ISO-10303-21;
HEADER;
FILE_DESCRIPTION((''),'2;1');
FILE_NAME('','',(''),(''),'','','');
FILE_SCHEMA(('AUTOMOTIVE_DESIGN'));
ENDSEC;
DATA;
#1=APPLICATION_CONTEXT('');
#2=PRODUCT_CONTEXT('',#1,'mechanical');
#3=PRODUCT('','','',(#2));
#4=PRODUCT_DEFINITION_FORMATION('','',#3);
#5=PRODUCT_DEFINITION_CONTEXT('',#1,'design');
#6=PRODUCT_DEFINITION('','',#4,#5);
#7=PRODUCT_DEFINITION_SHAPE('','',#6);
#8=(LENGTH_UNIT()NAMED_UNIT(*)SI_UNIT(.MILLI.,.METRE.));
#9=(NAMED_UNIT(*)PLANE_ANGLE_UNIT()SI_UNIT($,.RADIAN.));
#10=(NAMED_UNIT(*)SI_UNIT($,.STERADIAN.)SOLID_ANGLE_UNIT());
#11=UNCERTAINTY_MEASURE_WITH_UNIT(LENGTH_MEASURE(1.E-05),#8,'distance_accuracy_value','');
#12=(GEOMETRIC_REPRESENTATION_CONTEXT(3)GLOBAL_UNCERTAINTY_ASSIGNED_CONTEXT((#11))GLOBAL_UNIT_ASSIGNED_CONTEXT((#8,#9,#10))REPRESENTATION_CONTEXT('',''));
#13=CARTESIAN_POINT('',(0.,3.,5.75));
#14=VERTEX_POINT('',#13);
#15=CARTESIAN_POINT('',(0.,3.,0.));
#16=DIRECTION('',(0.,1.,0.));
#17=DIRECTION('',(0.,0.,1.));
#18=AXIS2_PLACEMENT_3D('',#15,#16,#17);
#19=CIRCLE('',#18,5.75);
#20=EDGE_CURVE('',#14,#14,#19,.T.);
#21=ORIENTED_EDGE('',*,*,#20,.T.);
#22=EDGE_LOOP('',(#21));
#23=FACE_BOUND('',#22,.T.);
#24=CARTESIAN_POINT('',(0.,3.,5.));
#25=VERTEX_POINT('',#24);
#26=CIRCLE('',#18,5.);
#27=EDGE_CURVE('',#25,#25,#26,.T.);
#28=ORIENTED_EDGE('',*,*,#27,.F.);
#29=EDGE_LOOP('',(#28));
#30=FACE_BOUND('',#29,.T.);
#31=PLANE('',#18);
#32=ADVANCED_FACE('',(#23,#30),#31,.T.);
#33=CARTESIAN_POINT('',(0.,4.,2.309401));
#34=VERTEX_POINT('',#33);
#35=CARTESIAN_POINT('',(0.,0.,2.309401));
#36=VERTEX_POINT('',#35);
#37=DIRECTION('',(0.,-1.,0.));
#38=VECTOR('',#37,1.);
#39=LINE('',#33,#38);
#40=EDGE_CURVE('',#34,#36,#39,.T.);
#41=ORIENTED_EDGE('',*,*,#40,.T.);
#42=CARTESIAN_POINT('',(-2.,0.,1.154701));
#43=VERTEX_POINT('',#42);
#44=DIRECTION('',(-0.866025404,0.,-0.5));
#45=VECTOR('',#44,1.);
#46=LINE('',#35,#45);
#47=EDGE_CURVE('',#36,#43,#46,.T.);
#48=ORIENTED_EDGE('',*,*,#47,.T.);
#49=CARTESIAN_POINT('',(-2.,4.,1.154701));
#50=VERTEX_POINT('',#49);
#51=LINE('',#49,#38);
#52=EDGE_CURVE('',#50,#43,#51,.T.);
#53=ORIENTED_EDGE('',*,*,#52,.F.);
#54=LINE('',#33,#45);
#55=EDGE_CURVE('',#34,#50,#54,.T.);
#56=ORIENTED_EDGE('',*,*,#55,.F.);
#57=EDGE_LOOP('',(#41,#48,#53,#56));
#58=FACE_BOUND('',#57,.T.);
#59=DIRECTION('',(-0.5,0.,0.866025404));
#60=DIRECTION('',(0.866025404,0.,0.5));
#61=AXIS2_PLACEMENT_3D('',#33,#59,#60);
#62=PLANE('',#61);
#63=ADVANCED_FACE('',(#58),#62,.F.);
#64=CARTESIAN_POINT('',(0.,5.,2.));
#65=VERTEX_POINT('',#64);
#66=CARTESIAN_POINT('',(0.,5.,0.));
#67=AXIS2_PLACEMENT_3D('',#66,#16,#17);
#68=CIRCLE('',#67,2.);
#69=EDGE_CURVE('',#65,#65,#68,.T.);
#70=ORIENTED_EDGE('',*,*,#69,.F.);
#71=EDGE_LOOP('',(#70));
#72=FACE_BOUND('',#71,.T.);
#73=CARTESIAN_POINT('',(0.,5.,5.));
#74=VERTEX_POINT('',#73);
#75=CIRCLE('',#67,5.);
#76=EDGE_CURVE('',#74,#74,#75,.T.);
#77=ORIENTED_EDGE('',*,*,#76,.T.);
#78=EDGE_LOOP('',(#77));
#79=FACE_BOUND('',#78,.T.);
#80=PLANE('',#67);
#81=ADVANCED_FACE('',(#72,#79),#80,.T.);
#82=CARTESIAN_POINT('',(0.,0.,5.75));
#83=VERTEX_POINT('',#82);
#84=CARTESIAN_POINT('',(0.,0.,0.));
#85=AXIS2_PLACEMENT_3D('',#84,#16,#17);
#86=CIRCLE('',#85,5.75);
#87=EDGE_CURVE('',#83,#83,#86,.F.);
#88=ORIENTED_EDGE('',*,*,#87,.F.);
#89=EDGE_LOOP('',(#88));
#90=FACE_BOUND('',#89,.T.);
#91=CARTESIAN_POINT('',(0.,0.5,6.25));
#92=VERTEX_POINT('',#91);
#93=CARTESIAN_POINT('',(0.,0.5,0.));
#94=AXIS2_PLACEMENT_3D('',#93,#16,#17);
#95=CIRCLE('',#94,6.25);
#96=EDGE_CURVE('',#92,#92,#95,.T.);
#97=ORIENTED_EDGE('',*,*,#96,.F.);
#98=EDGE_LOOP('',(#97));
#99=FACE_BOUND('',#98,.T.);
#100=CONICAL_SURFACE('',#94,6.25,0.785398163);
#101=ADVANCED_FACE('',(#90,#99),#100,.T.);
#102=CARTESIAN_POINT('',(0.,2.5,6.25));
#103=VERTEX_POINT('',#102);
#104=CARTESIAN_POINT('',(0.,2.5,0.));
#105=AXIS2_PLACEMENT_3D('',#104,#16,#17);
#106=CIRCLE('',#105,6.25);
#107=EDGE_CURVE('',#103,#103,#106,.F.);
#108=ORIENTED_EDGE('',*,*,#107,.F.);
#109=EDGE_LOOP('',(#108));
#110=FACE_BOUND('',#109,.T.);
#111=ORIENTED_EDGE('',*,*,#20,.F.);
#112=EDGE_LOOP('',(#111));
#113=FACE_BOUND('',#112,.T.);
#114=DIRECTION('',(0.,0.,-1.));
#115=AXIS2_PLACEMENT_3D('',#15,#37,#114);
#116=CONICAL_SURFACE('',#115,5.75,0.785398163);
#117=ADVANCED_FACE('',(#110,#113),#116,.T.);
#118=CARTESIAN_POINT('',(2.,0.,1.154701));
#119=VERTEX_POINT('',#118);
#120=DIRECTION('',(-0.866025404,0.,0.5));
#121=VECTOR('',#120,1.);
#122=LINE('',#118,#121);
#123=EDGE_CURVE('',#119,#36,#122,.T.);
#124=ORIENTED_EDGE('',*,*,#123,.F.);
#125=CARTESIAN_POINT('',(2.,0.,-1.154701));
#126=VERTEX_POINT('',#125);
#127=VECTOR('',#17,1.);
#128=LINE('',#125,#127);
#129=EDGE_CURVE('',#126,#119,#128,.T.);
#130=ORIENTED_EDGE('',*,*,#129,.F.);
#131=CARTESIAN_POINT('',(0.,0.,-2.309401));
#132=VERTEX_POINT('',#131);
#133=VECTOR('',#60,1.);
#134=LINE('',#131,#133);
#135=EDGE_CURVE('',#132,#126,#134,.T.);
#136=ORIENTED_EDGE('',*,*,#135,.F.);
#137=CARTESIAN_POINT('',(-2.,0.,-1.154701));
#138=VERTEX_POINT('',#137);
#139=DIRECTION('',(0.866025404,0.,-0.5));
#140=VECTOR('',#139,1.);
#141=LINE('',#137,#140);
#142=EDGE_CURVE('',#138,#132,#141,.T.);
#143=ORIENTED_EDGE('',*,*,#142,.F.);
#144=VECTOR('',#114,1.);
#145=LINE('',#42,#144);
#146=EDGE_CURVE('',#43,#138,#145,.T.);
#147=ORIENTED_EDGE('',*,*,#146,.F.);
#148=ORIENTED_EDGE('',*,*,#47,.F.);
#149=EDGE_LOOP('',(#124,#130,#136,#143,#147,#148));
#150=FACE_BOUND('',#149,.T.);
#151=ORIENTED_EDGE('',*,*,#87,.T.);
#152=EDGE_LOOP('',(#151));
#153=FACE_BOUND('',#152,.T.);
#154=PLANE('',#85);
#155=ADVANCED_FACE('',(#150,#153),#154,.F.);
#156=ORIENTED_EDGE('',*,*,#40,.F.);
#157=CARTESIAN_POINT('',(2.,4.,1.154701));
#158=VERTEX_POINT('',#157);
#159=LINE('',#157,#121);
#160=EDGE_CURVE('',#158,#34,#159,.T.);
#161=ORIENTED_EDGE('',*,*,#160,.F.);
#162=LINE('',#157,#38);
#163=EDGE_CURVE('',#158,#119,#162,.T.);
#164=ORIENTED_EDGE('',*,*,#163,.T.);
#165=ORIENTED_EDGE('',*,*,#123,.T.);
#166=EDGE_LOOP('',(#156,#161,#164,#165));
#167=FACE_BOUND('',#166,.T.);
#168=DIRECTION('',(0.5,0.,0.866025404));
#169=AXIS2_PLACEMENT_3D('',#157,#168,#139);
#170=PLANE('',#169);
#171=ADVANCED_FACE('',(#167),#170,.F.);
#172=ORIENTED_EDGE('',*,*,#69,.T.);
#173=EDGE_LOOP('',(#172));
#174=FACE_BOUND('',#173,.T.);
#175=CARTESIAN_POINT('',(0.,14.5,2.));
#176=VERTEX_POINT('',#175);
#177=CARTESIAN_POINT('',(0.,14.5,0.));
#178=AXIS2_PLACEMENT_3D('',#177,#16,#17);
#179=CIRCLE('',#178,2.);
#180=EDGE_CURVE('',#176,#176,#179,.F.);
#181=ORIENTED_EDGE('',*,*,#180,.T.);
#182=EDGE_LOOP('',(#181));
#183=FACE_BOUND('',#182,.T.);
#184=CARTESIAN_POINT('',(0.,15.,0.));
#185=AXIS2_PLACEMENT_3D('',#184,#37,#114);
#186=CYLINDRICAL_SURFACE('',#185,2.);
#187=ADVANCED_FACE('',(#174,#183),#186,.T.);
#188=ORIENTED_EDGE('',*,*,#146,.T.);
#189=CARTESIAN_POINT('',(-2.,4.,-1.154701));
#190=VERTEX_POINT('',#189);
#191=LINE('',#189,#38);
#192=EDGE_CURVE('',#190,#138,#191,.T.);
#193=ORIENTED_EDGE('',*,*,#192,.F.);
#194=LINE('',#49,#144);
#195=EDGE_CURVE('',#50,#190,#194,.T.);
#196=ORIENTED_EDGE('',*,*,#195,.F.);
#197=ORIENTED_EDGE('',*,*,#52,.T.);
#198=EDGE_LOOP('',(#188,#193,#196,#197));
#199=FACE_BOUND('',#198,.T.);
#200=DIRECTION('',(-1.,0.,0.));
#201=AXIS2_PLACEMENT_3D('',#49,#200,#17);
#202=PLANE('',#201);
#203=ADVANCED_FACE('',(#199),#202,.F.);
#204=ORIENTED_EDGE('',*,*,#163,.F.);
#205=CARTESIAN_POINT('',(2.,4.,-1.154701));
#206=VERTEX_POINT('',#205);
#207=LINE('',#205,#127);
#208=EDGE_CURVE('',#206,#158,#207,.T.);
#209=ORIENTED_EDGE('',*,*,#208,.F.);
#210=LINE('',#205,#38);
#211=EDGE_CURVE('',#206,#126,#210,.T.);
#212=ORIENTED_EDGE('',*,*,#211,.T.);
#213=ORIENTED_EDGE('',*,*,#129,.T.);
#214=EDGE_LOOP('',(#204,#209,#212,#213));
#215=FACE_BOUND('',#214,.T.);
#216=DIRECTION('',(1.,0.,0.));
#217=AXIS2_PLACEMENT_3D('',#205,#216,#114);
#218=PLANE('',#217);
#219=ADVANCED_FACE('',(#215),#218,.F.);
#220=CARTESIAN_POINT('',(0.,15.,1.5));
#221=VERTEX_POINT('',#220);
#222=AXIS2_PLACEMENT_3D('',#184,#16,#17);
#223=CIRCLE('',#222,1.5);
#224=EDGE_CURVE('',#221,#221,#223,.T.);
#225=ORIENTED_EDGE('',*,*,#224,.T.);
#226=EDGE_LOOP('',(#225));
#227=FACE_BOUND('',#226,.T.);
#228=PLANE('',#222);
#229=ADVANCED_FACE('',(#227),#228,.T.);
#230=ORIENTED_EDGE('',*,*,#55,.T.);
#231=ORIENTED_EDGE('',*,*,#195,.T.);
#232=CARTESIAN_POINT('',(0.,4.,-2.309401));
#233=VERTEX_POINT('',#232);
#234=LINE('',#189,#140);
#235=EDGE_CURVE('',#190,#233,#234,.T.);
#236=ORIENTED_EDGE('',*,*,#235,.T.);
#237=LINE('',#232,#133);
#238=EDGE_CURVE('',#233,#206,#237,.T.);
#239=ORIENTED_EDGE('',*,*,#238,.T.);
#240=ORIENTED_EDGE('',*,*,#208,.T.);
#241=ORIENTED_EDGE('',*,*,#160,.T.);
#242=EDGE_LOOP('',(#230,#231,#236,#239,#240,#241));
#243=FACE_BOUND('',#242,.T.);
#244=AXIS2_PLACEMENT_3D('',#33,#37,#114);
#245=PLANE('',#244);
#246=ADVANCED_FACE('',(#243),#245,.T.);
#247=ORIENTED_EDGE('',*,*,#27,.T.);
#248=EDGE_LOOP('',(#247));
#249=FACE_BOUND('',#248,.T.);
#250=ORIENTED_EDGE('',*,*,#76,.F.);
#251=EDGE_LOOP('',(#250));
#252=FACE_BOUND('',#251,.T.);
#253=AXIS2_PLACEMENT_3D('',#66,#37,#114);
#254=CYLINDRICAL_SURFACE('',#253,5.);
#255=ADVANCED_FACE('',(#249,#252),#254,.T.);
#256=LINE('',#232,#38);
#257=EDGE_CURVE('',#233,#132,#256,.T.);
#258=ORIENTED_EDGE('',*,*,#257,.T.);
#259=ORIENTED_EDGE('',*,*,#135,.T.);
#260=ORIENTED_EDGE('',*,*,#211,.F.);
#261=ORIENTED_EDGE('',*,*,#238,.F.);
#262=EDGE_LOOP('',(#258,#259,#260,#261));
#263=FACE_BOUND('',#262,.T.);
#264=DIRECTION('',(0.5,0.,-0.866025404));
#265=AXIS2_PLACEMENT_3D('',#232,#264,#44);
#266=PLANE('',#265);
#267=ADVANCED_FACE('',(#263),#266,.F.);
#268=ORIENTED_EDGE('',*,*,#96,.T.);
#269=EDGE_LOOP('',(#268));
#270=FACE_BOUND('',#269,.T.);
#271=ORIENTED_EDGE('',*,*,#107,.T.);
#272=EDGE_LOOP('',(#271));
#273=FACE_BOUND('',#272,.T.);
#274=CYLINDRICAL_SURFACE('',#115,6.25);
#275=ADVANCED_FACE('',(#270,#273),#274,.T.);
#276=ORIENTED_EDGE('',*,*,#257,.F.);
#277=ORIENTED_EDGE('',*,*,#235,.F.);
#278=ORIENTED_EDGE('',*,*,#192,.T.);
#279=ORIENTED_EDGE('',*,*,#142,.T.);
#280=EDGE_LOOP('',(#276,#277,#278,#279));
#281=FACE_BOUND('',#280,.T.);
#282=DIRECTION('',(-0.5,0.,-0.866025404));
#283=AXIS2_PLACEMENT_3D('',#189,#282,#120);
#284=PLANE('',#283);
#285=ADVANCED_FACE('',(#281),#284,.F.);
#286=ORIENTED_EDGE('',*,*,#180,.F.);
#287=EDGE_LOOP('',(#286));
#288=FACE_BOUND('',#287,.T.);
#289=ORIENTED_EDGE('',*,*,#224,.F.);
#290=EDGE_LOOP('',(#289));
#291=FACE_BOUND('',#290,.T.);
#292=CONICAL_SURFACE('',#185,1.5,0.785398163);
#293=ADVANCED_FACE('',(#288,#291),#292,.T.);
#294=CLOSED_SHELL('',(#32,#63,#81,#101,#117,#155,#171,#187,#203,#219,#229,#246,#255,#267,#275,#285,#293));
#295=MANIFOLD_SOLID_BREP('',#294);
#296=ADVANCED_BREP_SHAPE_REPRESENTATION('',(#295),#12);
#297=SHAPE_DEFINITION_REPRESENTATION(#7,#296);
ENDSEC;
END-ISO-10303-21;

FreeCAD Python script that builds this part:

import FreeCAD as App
import Part
import Sketcher
from FreeCAD import Vector
Q = App.Units.Quantity


def edges_at(feature, points):
    """Names of the edges that pass closest to the given points."""
    edges = feature.Shape.Edges
    near = lambda p: min(range(len(edges)), key=lambda i: edges[i].distToShape(Part.Vertex(*p))[0])
    return sorted({f"Edge{near(p) + 1}" for p in points})

doc = App.newDocument("Part")
body = doc.addObject("PartDesign::Body", "Body")

# Sketch on XZ plane
sketch1 = body.newObject("Sketcher::SketchObject", "Sketch")
sketch1.AttachmentSupport = (doc.getObject("XZ_Plane"), [""])
sketch1.MapMode = "FlatFace"
sketch1.addGeometry(Part.Circle(Vector(0, 0, 0), Vector(0, 0, 1), 6.25), False)
sketch1.addConstraint([
    Sketcher.Constraint("Coincident", 0, 3, -1, 1),
    Sketcher.Constraint("Diameter", 0, 12.5),
])
pad1 = body.newObject("PartDesign::Pad", "Pad")
pad1.Profile = sketch1
pad1.Length = 3
pad1.Reversed = True

# Sketch on XZ plane
sketch2 = body.newObject("Sketcher::SketchObject", "Sketch001")
sketch2.AttachmentSupport = (doc.getObject("XZ_Plane"), [""])
sketch2.MapMode = "FlatFace"
sketch2.AttachmentOffset = App.Placement(Vector(0, 0, -3), App.Rotation())
sketch2.addGeometry(Part.Circle(Vector(0, 0, 0), Vector(0, 0, 1), 5), False)
sketch2.addConstraint([
    Sketcher.Constraint("Coincident", 0, 3, -1, 1),
    Sketcher.Constraint("Diameter", 0, 10.0),
])
pad2 = body.newObject("PartDesign::Pad", "Pad001")
pad2.Profile = sketch2
pad2.Length = 2
pad2.Reversed = True

# Sketch on XZ plane
sketch3 = body.newObject("Sketcher::SketchObject", "Sketch002")
sketch3.AttachmentSupport = (doc.getObject("XZ_Plane"), [""])
sketch3.MapMode = "FlatFace"
sketch3.AttachmentOffset = App.Placement(Vector(0, 0, -5), App.Rotation())
sketch3.addGeometry(Part.Circle(Vector(0, 0, 0), Vector(0, 0, 1), 2), False)
sketch3.addConstraint([
    Sketcher.Constraint("Coincident", 0, 3, -1, 1),
    Sketcher.Constraint("Diameter", 0, 4.0),
])
pad3 = body.newObject("PartDesign::Pad", "Pad002")
pad3.Profile = sketch3
pad3.Length = 10
pad3.Reversed = True
doc.recompute()

chamfer = body.newObject("PartDesign::Chamfer", "Chamfer")
chamfer.Base = (pad3, edges_at(pad3, [(-6.25, 0, 0), (-6.25, 3, 0)]))
chamfer.Size = 0.5
doc.recompute()

chamfer2 = body.newObject("PartDesign::Chamfer", "Chamfer001")
chamfer2.Base = (chamfer, edges_at(chamfer, [(-2, 15, 0)]))
chamfer2.Size = 0.5

# Sketch on XZ plane
sketch4 = body.newObject("Sketcher::SketchObject", "Sketch003")
sketch4.AttachmentSupport = (doc.getObject("XZ_Plane"), [""])
sketch4.MapMode = "FlatFace"
sketch4.addGeometry([
    Part.LineSegment(Vector(0, 2.309401, 0), Vector(-2, 1.154701, 0)),  # 0
    Part.LineSegment(Vector(-2, 1.154701, 0), Vector(-2, -1.154701, 0)),  # 1
    Part.LineSegment(Vector(-2, -1.154701, 0), Vector(0, -2.309401, 0)),  # 2
    Part.LineSegment(Vector(0, -2.309401, 0), Vector(2, -1.154701, 0)),  # 3
    Part.LineSegment(Vector(2, -1.154701, 0), Vector(2, 1.154701, 0)),  # 4
    Part.LineSegment(Vector(2, 1.154701, 0), Vector(0, 2.309401, 0)),  # 5
], False)
sketch4.addConstraint([
    Sketcher.Constraint("Coincident", 0, 2, 1, 1),
    Sketcher.Constraint("Coincident", 1, 2, 2, 1),
    Sketcher.Constraint("Coincident", 2, 2, 3, 1),
    Sketcher.Constraint("Coincident", 3, 2, 4, 1),
    Sketcher.Constraint("Coincident", 4, 2, 5, 1),
    Sketcher.Constraint("Coincident", 5, 2, 0, 1),
    Sketcher.Constraint("Vertical", 1),
    Sketcher.Constraint("Vertical", 4),
    Sketcher.Constraint("Symmetric", 0, 2, 3, 2, -1, 1),
    Sketcher.Constraint("Symmetric", 2, 2, 5, 2, -1, 1),
    Sketcher.Constraint("PointOnObject", 2, 2, -2),
    Sketcher.Constraint("Parallel", 2, 5),
    Sketcher.Constraint("Horizontal", 1, 2, 3, 2),
    Sketcher.Constraint("Angle", 0, Q("-150 deg")),
    Sketcher.Constraint("DistanceX", 0, 2, -1, 1, 2.0),
    Sketcher.Constraint("DistanceY", 1, 2, 1, 1, 2.309401),
])
pocket1 = body.newObject("PartDesign::Pocket", "Pocket")
pocket1.Profile = sketch4
pocket1.Length = 4

doc.recompute()
